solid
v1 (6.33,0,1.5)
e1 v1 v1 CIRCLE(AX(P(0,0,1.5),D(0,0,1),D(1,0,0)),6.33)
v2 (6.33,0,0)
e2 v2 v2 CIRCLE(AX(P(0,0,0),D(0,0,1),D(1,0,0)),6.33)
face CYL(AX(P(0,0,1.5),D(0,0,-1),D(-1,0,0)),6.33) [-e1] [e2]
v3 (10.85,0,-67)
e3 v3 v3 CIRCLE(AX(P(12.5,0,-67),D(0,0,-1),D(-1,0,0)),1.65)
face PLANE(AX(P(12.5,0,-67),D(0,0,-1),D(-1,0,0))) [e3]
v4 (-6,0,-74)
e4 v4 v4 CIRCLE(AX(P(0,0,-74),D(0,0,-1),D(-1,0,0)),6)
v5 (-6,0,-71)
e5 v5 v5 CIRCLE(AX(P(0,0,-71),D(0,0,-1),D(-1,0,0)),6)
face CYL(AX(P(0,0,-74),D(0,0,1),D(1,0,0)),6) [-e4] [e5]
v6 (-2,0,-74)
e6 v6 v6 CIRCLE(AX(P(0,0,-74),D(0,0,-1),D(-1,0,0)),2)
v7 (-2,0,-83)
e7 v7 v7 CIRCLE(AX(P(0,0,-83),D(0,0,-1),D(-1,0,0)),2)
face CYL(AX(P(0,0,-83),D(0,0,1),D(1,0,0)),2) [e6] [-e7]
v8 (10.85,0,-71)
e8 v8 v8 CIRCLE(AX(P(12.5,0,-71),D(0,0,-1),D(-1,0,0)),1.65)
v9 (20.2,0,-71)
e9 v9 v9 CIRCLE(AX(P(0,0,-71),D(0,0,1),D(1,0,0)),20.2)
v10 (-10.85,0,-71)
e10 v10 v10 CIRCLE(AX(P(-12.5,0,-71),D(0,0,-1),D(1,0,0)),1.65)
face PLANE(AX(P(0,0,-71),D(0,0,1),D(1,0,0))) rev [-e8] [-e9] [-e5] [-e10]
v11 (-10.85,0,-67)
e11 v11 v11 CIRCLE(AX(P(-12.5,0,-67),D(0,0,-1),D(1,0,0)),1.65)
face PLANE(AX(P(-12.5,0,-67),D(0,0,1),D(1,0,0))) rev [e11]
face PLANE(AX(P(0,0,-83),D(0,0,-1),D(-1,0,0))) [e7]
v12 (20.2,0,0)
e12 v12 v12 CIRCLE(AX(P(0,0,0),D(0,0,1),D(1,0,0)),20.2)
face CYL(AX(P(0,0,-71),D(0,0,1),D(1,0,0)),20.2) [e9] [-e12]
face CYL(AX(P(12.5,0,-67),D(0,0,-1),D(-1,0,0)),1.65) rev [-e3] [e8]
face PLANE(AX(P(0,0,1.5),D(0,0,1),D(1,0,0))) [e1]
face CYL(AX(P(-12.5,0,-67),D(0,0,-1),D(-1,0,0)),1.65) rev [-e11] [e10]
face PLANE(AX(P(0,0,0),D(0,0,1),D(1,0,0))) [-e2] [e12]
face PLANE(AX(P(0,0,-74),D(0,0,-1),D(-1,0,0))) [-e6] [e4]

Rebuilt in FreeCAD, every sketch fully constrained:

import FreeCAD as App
import Part
import Sketcher

V = App.Vector

doc = App.newDocument("Part")
body = doc.addObject("PartDesign::Body", "Body")

# Sketch on XY plane
sketch1 = body.newObject("Sketcher::SketchObject", "Sketch")
sketch1.AttachmentSupport = (doc.getObject("XY_Plane"), [""])
sketch1.MapMode = "FlatFace"
sketch1.addGeometry(Part.Circle(V(0, 0, 0), V(0, 0, 1), 6), False)
sketch1.addConstraint([
    Sketcher.Constraint("Coincident", 0, 3, -1, 1),
    Sketcher.Constraint("Diameter", 0, 12.66),
])
pad1 = body.newObject("PartDesign::Pad", "Pad")
pad1.Profile = sketch1
pad1.Length = 1.5

# Sketch on XY plane
sketch2 = body.newObject("Sketcher::SketchObject", "Sketch001")
sketch2.AttachmentSupport = (doc.getObject("XY_Plane"), [""])
sketch2.MapMode = "FlatFace"
sketch2.addGeometry(Part.Circle(V(0, 0, 0), V(0, 0, 1), 20), False)
sketch2.addConstraint([
    Sketcher.Constraint("Coincident", 0, 3, -1, 1),
    Sketcher.Constraint("Diameter", 0, 40.4),
])
pad2 = body.newObject("PartDesign::Pad", "Pad001")
pad2.Profile = sketch2
pad2.Length = 71
pad2.Reversed = True

# Sketch on XY plane
sketch3 = body.newObject("Sketcher::SketchObject", "Sketch002")
sketch3.AttachmentSupport = (doc.getObject("XY_Plane"), [""])
sketch3.MapMode = "FlatFace"
sketch3.AttachmentOffset = App.Placement(V(0, 0, -71), App.Rotation())
sketch3.addGeometry(Part.Circle(V(0, 0, 0), V(0, 0, 1), 6), False)
sketch3.addConstraint([
    Sketcher.Constraint("Coincident", 0, 3, -1, 1),
    Sketcher.Constraint("Diameter", 0, 12.0),
])
pad3 = body.newObject("PartDesign::Pad", "Pad002")
pad3.Profile = sketch3
pad3.Length = 3
pad3.Reversed = True

# Sketch on XY plane
sketch4 = body.newObject("Sketcher::SketchObject", "Sketch003")
sketch4.AttachmentSupport = (doc.getObject("XY_Plane"), [""])
sketch4.MapMode = "FlatFace"
sketch4.AttachmentOffset = App.Placement(V(0, 0, -74), App.Rotation())
sketch4.addGeometry(Part.Circle(V(0, 0, 0), V(0, 0, 1), 2), False)
sketch4.addConstraint([
    Sketcher.Constraint("Coincident", 0, 3, -1, 1),
    Sketcher.Constraint("Diameter", 0, 4.0),
])
pad4 = body.newObject("PartDesign::Pad", "Pad003")
pad4.Profile = sketch4
pad4.Length = 9
pad4.Reversed = True

# Sketch on XY plane
sketch5 = body.newObject("Sketcher::SketchObject", "Sketch004")
sketch5.AttachmentSupport = (doc.getObject("XY_Plane"), [""])
sketch5.MapMode = "FlatFace"
sketch5.AttachmentOffset = App.Placement(V(0, 0, -71), App.Rotation())
sketch5.addGeometry([
    Part.Circle(V(12.5, 0, 0), V(0, 0, 1), 1.6),
    Part.Circle(V(-12.5, 0, 0), V(0, 0, 1), 1.6),
], False)
sketch5.addConstraint([
    Sketcher.Constraint("Equal", 0, 1),
    Sketcher.Constraint("Symmetric", 0, 3, 1, 3, -1, 1),
    Sketcher.Constraint("PointOnObject", 0, 3, -1),
    Sketcher.Constraint("Diameter", 0, 3.3),
    Sketcher.Constraint("DistanceX", 1, 3, 0, 3, 25.0),
])
pocket1 = body.newObject("PartDesign::Pocket", "Pocket")
pocket1.Profile = sketch5
pocket1.Length = 4
pocket1.Reversed = True

doc.recompute()
